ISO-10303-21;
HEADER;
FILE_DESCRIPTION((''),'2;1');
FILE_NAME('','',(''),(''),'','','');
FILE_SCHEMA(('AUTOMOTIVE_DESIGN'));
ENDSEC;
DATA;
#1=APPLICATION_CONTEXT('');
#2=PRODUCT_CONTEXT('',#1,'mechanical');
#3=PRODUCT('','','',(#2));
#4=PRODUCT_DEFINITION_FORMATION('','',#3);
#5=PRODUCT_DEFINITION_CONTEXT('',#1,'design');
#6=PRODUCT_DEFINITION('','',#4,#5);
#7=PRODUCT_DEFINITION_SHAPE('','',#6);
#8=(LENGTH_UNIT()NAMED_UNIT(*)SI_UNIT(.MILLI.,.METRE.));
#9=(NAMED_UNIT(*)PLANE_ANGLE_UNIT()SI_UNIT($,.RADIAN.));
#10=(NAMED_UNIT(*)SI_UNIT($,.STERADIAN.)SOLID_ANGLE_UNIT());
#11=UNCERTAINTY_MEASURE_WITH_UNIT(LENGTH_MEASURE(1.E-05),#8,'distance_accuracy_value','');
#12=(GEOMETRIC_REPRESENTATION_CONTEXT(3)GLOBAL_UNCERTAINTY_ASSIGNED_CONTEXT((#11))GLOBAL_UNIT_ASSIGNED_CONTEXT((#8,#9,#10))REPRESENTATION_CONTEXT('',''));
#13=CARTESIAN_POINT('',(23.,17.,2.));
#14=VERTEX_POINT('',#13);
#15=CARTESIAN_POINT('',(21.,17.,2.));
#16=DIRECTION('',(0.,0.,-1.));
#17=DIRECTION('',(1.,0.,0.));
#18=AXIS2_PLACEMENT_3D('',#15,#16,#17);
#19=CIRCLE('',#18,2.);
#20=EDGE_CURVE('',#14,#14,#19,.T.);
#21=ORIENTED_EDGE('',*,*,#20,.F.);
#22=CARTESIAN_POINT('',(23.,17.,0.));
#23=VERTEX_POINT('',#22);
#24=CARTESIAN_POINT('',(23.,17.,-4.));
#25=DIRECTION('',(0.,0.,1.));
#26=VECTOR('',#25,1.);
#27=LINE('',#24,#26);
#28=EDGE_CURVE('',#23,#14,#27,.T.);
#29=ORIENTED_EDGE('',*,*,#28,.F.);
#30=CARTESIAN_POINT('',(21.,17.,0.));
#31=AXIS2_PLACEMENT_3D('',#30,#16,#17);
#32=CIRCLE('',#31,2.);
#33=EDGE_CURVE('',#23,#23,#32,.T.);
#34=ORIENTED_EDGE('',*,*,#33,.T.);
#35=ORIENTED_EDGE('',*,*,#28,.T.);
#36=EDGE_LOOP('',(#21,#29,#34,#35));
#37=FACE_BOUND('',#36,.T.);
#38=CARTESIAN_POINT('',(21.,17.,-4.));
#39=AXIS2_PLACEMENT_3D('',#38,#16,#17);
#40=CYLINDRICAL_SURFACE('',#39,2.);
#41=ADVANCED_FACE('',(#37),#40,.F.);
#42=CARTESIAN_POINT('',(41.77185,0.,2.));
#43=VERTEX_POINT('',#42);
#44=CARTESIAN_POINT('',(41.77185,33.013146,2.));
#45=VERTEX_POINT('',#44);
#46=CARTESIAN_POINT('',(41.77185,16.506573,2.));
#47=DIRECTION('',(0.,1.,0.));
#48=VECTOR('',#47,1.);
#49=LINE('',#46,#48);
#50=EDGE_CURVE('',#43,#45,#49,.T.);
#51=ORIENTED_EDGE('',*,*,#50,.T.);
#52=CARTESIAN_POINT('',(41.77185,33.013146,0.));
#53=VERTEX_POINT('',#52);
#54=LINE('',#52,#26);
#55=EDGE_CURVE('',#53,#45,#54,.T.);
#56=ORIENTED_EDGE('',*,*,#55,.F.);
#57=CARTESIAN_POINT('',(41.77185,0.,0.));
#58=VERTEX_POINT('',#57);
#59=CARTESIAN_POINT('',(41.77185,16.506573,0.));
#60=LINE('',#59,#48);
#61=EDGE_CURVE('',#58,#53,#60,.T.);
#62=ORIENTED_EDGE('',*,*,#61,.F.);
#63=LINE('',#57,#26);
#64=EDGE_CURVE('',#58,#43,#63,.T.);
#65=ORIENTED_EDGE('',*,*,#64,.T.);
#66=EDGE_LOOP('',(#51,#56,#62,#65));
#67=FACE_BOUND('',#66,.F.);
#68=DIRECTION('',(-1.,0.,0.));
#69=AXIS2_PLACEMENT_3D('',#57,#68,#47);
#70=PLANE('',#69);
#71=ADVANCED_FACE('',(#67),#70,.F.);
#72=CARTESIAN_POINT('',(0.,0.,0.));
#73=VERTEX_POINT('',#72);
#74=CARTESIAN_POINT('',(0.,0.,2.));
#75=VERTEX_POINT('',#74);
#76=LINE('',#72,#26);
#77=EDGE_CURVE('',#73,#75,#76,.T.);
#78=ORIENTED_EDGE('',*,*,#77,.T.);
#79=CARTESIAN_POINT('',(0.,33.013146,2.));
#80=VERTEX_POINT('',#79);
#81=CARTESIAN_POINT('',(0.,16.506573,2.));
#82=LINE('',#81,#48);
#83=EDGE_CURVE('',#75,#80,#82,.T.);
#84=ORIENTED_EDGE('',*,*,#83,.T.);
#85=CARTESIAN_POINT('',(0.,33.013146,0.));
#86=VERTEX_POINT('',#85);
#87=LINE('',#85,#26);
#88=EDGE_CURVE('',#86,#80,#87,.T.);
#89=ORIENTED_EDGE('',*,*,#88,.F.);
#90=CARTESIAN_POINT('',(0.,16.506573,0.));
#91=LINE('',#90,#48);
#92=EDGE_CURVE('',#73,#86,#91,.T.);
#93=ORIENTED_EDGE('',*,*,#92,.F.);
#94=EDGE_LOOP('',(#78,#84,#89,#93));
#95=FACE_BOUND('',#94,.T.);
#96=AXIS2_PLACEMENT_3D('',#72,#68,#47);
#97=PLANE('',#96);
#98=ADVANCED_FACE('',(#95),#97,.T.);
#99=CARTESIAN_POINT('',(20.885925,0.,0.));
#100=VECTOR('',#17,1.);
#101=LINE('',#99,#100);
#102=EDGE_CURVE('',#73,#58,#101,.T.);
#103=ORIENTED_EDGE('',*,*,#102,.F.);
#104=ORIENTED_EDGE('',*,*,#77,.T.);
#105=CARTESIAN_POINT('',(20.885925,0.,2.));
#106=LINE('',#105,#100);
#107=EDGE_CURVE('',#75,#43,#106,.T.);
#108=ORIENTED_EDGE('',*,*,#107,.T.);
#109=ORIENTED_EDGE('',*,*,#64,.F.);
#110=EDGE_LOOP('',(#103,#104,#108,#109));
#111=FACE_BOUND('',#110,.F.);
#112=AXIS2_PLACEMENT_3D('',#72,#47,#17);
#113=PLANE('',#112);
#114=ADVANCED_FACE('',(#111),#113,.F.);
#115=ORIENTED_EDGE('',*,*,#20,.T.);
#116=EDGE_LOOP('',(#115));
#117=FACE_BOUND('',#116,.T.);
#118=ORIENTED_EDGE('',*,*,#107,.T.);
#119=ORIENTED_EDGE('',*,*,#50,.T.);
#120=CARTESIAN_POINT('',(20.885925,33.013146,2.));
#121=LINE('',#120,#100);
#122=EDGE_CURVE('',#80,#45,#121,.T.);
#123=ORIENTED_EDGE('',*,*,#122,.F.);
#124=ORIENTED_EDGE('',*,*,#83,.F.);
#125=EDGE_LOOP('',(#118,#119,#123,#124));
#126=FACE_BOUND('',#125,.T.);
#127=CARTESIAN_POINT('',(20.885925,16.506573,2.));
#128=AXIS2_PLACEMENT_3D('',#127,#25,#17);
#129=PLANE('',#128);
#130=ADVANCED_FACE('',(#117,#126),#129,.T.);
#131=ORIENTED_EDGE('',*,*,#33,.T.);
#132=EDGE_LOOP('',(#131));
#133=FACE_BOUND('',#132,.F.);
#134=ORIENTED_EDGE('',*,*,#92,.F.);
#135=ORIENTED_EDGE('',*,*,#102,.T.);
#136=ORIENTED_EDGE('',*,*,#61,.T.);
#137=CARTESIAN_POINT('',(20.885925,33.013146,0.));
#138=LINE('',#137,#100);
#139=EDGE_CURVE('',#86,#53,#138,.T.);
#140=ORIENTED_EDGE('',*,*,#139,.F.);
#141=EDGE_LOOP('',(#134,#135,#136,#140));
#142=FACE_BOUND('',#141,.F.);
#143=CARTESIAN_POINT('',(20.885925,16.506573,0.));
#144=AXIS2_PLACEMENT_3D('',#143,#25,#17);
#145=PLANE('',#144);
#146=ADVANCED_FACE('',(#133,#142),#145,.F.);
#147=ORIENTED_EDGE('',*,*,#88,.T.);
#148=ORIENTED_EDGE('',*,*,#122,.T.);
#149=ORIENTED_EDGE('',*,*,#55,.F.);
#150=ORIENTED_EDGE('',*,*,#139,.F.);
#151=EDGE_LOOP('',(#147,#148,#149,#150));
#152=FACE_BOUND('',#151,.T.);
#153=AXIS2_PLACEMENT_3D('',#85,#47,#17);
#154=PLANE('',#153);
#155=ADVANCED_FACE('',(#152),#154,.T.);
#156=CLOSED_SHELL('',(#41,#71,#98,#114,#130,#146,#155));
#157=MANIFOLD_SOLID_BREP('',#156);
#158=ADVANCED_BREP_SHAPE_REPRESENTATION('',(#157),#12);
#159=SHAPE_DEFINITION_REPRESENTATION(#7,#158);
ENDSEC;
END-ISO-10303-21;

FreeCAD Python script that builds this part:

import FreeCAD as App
import Part
import Sketcher


def add_polygon(sketch, points):
    """Adds a closed chain of lines whose ends are joined by coincident constraints."""
    first, n = sketch.GeometryCount, len(points)
    for a, b in zip(points, points[1:] + points[:1]):
        sketch.addGeometry(Part.LineSegment(App.Vector(*a, 0), App.Vector(*b, 0)), False)
    for i in range(n):
        sketch.addConstraint(Sketcher.Constraint("Coincident", first + i, 2, first + (i + 1) % n, 1))

doc = App.newDocument("Part")
params = doc.addObject("Spreadsheet::Sheet", "Params")
for row, (alias, value) in enumerate([
    ("sketch1_diameter", "4 mm"),
    ("pad1_length", "10 mm"),
    ("pad2_length", "2 mm"),
], start=1):
    params.set(f"A{row}", alias)
    params.set(f"B{row}", "=" + value)
    params.setAlias(f"B{row}", alias)

body = doc.addObject("PartDesign::Body", "Body")

# Sketch on XY plane
sketch1 = doc.addObject("Sketcher::SketchObject", "Sketch")
body.addObject(sketch1)
sketch1.AttachmentSupport = (doc.XY_Plane, [""])
sketch1.MapMode = "FlatFace"
sketch1.AttachmentOffset = App.Placement(App.Vector(0, 0, -4), App.Rotation())
sketch1.addGeometry(Part.Circle(App.Vector(21, 17, 0), App.Vector(0, 0, 1), 2), False)
sketch1.addConstraint([
    Sketcher.Constraint("Diameter", 0, 4.0),
    Sketcher.Constraint("DistanceX", -1, 1, 0, 3, 21.0),
    Sketcher.Constraint("DistanceY", -1, 1, 0, 3, 17.0),
])
sketch1.setExpression("Constraints[0]", "Params.sketch1_diameter")
pad1 = doc.addObject("PartDesign::Pad", "Pad")
body.addObject(pad1)
pad1.Profile = sketch1
pad1.setExpression("Length", "Params.pad1_length")
body2 = doc.addObject("PartDesign::Body", "Body001")

# Sketch on XY plane
sketch2 = doc.addObject("Sketcher::SketchObject", "Sketch001")
body2.addObject(sketch2)
sketch2.AttachmentSupport = (doc.getObject("XY_Plane001"), [""])
sketch2.MapMode = "FlatFace"
add_polygon(sketch2, [(0, 33), (0, 0), (42, 0), (42, 33)])  # lines 0-3
sketch2.addConstraint([
    Sketcher.Constraint("Vertical", 0),
    Sketcher.Constraint("Horizontal", 1),
    Sketcher.Constraint("Vertical", 2),
    Sketcher.Constraint("Horizontal", 3),
    Sketcher.Constraint("Coincident", 0, 2, -1, 1),
    Sketcher.Constraint("DistanceX", 1, 1, 1, 2, 41.771851),
    Sketcher.Constraint("DistanceY", 0, 2, 0, 1, 33.013145),
])
pad2 = doc.addObject("PartDesign::Pad", "Pad001")
body2.addObject(pad2)
pad2.Profile = sketch2
pad2.setExpression("Length", "Params.pad2_length")
doc.recompute()

boolean = doc.addObject("PartDesign::Boolean", "Boolean")
body2.addObject(boolean)
boolean.Type = "Cut"
boolean.addObjects([body])

doc.recompute()
